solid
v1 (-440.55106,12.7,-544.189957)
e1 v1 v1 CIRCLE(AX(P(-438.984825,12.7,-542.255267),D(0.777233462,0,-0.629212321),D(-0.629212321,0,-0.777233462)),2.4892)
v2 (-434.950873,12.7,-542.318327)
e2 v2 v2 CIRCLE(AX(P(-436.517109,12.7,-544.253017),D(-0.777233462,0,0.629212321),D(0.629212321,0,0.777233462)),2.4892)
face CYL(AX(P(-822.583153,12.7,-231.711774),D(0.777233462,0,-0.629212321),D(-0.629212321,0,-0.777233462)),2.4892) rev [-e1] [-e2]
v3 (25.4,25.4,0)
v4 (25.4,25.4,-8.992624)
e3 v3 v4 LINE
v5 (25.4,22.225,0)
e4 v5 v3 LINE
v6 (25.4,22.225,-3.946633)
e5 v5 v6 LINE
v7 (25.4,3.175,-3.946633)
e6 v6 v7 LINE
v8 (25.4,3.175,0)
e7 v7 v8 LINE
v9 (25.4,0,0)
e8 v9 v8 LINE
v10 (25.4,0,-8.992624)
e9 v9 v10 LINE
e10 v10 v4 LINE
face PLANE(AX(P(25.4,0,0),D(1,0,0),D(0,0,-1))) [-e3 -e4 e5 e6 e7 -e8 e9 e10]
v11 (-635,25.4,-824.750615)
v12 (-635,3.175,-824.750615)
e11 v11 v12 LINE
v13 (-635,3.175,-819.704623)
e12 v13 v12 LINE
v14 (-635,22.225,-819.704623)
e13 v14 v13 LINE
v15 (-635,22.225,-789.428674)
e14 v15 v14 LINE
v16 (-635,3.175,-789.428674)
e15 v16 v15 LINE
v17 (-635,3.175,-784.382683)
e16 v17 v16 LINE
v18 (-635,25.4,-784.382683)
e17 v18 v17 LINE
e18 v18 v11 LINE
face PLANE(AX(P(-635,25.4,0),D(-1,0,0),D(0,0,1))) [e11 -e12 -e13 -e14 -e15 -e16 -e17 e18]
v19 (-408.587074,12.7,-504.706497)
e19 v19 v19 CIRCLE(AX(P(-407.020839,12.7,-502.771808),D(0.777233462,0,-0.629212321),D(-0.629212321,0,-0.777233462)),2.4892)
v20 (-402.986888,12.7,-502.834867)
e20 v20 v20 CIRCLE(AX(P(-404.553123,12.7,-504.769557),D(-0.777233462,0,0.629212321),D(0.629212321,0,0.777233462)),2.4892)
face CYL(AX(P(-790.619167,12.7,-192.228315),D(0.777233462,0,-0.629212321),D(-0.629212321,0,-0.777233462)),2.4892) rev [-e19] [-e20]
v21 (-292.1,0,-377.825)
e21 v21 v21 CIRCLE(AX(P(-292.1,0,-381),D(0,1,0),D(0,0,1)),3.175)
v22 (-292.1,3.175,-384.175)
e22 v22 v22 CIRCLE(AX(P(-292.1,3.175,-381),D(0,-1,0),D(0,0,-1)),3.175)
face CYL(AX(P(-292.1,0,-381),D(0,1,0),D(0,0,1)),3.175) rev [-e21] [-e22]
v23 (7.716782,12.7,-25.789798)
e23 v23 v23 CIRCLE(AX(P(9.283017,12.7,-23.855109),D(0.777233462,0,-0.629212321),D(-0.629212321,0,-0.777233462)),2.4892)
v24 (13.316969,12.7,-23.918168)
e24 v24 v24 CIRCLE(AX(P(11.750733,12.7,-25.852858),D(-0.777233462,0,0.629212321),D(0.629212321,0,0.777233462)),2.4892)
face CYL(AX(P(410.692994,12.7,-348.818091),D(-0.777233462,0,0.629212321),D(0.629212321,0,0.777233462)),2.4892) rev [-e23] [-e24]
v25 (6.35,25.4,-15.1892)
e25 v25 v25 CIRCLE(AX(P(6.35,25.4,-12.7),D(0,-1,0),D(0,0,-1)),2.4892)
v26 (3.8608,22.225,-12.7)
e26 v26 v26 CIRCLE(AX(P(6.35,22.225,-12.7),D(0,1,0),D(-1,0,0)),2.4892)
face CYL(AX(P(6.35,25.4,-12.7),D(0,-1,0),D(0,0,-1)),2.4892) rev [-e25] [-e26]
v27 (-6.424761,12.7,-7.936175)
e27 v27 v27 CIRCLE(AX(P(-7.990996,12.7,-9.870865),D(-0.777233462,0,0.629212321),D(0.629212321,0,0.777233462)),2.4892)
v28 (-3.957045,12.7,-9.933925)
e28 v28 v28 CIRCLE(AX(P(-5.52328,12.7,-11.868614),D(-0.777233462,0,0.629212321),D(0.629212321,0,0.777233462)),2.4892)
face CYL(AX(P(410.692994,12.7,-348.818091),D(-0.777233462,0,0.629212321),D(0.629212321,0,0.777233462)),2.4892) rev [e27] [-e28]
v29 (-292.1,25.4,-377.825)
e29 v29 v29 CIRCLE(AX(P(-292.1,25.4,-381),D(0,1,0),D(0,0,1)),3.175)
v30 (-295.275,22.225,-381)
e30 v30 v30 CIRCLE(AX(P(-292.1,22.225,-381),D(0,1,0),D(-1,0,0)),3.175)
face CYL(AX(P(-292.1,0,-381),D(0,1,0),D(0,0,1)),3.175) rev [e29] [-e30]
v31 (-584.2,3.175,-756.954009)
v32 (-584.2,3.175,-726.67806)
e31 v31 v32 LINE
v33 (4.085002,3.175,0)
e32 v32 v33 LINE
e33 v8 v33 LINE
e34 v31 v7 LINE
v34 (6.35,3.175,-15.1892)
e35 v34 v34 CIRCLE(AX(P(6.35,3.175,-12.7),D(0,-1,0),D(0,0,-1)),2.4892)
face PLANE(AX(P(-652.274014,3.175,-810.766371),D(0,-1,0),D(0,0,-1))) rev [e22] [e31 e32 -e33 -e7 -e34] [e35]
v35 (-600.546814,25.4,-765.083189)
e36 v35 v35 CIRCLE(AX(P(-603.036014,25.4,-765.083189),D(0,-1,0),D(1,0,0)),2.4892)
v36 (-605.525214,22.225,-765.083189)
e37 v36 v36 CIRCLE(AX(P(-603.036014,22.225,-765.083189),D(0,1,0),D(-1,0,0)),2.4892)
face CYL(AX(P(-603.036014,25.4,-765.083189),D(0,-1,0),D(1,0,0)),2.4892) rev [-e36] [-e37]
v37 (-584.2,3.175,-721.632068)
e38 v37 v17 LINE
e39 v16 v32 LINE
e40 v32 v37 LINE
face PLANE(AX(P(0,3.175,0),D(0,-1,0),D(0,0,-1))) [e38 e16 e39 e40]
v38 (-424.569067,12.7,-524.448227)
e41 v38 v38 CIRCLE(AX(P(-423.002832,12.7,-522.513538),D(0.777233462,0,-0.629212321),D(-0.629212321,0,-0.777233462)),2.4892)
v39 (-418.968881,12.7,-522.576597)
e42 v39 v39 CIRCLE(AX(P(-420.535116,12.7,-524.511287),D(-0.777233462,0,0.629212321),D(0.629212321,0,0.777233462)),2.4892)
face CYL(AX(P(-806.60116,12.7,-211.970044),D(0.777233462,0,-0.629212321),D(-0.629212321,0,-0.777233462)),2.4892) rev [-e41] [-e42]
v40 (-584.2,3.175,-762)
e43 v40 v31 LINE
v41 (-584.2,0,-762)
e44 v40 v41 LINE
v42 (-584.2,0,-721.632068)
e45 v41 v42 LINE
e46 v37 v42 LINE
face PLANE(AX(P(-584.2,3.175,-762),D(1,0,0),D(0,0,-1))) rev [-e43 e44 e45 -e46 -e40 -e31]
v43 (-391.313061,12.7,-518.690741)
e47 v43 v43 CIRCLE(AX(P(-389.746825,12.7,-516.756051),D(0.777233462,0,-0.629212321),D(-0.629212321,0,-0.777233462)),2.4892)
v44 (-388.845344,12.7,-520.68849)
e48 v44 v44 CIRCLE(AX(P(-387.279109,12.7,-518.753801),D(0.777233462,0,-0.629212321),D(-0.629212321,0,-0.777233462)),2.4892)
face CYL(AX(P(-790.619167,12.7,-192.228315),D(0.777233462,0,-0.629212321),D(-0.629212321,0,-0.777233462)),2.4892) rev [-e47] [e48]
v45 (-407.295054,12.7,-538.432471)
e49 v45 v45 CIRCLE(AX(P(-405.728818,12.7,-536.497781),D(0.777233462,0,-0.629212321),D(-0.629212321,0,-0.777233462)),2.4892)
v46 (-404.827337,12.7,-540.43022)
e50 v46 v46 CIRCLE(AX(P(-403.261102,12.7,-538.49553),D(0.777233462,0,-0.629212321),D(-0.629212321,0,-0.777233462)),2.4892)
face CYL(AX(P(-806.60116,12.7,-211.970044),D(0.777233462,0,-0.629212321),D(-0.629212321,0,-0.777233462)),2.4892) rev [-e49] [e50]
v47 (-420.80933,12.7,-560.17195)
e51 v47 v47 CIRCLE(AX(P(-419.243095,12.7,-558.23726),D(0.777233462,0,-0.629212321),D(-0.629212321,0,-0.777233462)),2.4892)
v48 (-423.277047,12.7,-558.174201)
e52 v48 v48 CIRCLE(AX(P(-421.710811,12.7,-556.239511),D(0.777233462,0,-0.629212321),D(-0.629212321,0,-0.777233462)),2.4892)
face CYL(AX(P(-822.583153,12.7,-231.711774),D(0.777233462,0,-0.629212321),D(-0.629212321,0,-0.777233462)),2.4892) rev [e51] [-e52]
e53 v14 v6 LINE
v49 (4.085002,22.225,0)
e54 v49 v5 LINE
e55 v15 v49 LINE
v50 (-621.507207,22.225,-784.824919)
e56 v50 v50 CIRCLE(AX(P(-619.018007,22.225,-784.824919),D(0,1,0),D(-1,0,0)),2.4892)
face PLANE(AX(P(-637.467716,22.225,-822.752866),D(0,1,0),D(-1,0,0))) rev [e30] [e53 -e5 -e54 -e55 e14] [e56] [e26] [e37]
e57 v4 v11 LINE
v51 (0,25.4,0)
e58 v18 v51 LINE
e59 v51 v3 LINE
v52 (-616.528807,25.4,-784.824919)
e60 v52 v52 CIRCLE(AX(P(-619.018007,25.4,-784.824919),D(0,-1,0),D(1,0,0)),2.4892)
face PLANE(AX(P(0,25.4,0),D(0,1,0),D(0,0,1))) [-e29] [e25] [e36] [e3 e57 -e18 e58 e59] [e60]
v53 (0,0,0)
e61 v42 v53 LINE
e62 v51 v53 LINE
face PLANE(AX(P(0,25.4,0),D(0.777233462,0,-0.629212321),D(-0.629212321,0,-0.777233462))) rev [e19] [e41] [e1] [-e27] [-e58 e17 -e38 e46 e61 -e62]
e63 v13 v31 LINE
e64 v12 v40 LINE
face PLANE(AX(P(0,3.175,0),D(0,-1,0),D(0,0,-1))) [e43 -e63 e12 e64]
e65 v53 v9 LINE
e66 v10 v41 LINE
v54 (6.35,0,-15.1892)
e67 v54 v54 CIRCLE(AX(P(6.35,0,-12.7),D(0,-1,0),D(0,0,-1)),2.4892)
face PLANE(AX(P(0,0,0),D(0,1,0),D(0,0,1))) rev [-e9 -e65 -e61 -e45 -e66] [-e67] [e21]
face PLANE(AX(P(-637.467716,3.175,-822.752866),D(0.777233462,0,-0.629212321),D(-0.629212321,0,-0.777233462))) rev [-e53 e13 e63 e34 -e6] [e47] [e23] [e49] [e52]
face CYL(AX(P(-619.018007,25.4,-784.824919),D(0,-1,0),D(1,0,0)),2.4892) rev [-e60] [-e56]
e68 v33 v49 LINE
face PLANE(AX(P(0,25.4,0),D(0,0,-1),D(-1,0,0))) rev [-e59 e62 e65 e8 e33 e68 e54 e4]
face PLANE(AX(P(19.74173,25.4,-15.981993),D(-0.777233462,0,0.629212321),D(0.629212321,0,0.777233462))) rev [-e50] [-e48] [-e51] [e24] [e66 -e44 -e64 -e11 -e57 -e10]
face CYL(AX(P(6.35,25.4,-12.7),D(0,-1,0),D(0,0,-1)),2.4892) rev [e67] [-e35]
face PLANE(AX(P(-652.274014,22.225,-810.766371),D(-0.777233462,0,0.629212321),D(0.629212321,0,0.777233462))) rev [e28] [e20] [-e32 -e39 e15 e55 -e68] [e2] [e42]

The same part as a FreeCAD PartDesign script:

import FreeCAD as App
import Part
import Sketcher
Q = App.Units.Quantity


def add_polygon(sketch, points):
    """Adds a closed chain of lines whose ends are joined by coincident constraints."""
    first, n = sketch.GeometryCount, len(points)
    for a, b in zip(points, points[1:] + points[:1]):
        sketch.addGeometry(Part.LineSegment(App.Vector(*a, 0), App.Vector(*b, 0)), False)
    for i in range(n):
        sketch.addConstraint(Sketcher.Constraint("Coincident", first + i, 2, first + (i + 1) % n, 1))

doc = App.newDocument("Part")
params = doc.addObject("Spreadsheet::Sheet", "Params")
for row, (alias, value) in enumerate([
    ("pad1_length", "1 in"),
    ("sketch2_width", "0.75 in"),
    ("sketch4_diameter", "0.197 in"),
    ("sketch4_diameter2", "0.196 in"),
    ("sketch5_diameter", "0.196 in"),
    ("sketch6_diameter", "0.25 in"),
    ("pocket6_length", "0.125 in"),
    ("sketch8_diameter", "0.196 in"),
    ("sketch9_diameter", "0.196 in"),
], start=1):
    params.set(f"A{row}", alias)
    params.set(f"B{row}", "=" + value)
    params.setAlias(f"B{row}", alias)

body = doc.addObject("PartDesign::Body", "Body")

sketch1 = doc.addObject("Sketcher::SketchObject", "Sketch")
body.addObject(sketch1)
sketch1.AttachmentSupport = (doc.XZ_Plane, [""])
sketch1.MapMode = "FlatFace"
add_polygon(sketch1, [(-584, -722), (0, 0), (33, 0), (0, -40), (-584, -762), (-635, -825), (-635, -784)])
sketch1.addConstraint([
    Sketcher.Constraint("Horizontal", 1),
    Sketcher.Constraint("Vertical", 5),
    Sketcher.Constraint("Coincident", 0, 2, -1, 1),
    Sketcher.Constraint("PointOnObject", 2, 2, -2),
    Sketcher.Constraint("Parallel", 0, 2),
    Sketcher.Constraint("Parallel", 2, 3),
    Sketcher.Constraint("Parallel", 3, 4),
    Sketcher.Constraint("Parallel", 4, 6),
    Sketcher.Constraint("Vertical", 3, 2, 6, 2),
    Sketcher.Constraint("DistanceX", 3, 2, -1, 1, Q("23 in")),
    Sketcher.Constraint("DistanceY", 3, 2, -1, 1, Q("30 in")),
    Sketcher.Constraint("DistanceX", 4, 2, -1, 1, Q("25 in")),
    Sketcher.Constraint("DistanceY", 5, 1, 5, 2, 40.367932),
])
pad1 = doc.addObject("PartDesign::Pad", "Pad")
body.addObject(pad1)
pad1.Profile = sketch1
pad1.setExpression("Length", "Params.pad1_length")
pad1.Reversed = True

sketch2 = doc.addObject("Sketcher::SketchObject", "Sketch001")
body.addObject(sketch2)
sketch2.Placement = App.Placement(App.Vector(12.938284, 0, 15.981993), App.Rotation(App.Vector(0, -1, 0), App.Vector(0.777233462, 0, -0.629212321), App.Vector(0.629212321, 0, 0.777233462), "ZXY"))
add_polygon(sketch2, [(-22, 22), (-22, 3), (-3, 3), (-3, 22)])
sketch2.addConstraint([
    Sketcher.Constraint("Vertical", 0),
    Sketcher.Constraint("Horizontal", 1),
    Sketcher.Constraint("Vertical", 2),
    Sketcher.Constraint("Horizontal", 3),
    Sketcher.Constraint("Equal", 3, 0),
    Sketcher.Constraint("DistanceX", 1, 1, 1, 2, Q("0.75 in")),
    Sketcher.Constraint("DistanceX", 0, 2, -1, 1, Q("0.875 in")),
    Sketcher.Constraint("DistanceY", -1, 1, 0, 2, Q("0.125 in")),
])
sketch2.setExpression("Constraints[9]", "Params.sketch2_width")
pocket1 = doc.addObject("PartDesign::Pocket", "Pocket")
body.addObject(pocket1)
pocket1.Profile = sketch2
pocket1.Type = "ThroughAll"

sketch3 = doc.addObject("Sketcher::SketchObject", "Sketch002")
body.addObject(sketch3)
sketch3.AttachmentSupport = (doc.XZ_Plane, [""])
sketch3.MapMode = "FlatFace"
sketch3.AttachmentOffset = App.Placement(App.Vector(0, 0, -1 * 25.4), App.Rotation())
add_polygon(sketch3, [(25, -9), (25, 0), (33, 0)])
sketch3.addConstraint([
    Sketcher.Constraint("Vertical", 0),
    Sketcher.Constraint("Horizontal", 1),
    Sketcher.Constraint("PointOnObject", 0, 2, -1),
    Sketcher.Constraint("DistanceX", -1, 1, 0, 2, Q("1 in")),
    Sketcher.Constraint("DistanceX", 1, 1, 1, 2, 7.280013),
    Sketcher.Constraint("DistanceY", 0, 1, 0, 2, 8.992624),
])
pocket2 = doc.addObject("PartDesign::Pocket", "Pocket001")
body.addObject(pocket2)
pocket2.Profile = sketch3
pocket2.Type = "ThroughAll"
pocket2.Reversed = True

sketch4 = doc.addObject("Sketcher::SketchObject", "Sketch003")
body.addObject(sketch4)
sketch4.AttachmentSupport = (doc.XZ_Plane, [""])
sketch4.MapMode = "FlatFace"
sketch4.addGeometry([
    Part.Circle(App.Vector(-571.5, -1019.3, 0), App.Vector(0, 0, 1), 2.5),
    Part.Circle(App.Vector(-565.2, -1008.3, 0), App.Vector(0, 0, 1), 2.5),
    Part.Circle(App.Vector(6.3, -12.7, 0), App.Vector(0, 0, 1), 2.5),
], False)
sketch4.addConstraint([
    Sketcher.Constraint("Equal", 0, 1),
    Sketcher.Constraint("Diameter", 0, Q("0.197 in")),
    Sketcher.Constraint("Diameter", 2, Q("0.196 in")),
    Sketcher.Constraint("DistanceY", 2, 3, -1, 1, Q("0.5 in")),
    Sketcher.Constraint("DistanceX", -1, 1, 2, 3, Q("0.25 in")),
    Sketcher.Constraint("DistanceX", 1, 3, -1, 1, 565.206141),
    Sketcher.Constraint("DistanceX", 0, 3, -1, 1, 571.537427),
    Sketcher.Constraint("DistanceY", 0, 3, -1, 1, 1019.306313),
    Sketcher.Constraint("DistanceY", 1, 3, -1, 1, 1008.297007),
])
sketch4.setExpression("Constraints[1]", "Params.sketch4_diameter")
sketch4.setExpression("Constraints[2]", "Params.sketch4_diameter2")
pocket3 = doc.addObject("PartDesign::Pocket", "Pocket002")
body.addObject(pocket3)
pocket3.Profile = sketch4
pocket3.Type = "ThroughAll"

sketch5 = doc.addObject("Sketcher::SketchObject", "Sketch004")
body.addObject(sketch5)
sketch5.Placement = App.Placement(App.Vector(0, 0, 0), App.Rotation(App.Vector(0.629212321, 0, 0.777233462), App.Vector(0, 0.999999999, 0), App.Vector(-0.777233462, 0, 0.629212321), "ZXY"))
sketch5.addGeometry(Part.Circle(App.Vector(-12.7, 12.7, 0), App.Vector(0, 0, 1), 2.5), False)
sketch5.addConstraint([
    Sketcher.Constraint("Diameter", 0, Q("0.196 in")),
    Sketcher.Constraint("DistanceX", 0, 3, -1, 1, Q("0.5 in")),
    Sketcher.Constraint("DistanceY", -1, 1, 0, 3, Q("0.5 in")),
])
sketch5.setExpression("Constraints[0]", "Params.sketch5_diameter")
pocket4 = doc.addObject("PartDesign::Pocket", "Pocket003")
body.addObject(pocket4)
pocket4.Profile = sketch5
pocket4.Type = "ThroughAll"

sketch6 = doc.addObject("Sketcher::SketchObject", "Sketch005")
body.addObject(sketch6)
sketch6.AttachmentSupport = (doc.XZ_Plane, [""])
sketch6.MapMode = "FlatFace"
sketch6.AttachmentOffset = App.Placement(App.Vector(0, 0, -1 * 25.4), App.Rotation())
sketch6.addGeometry(Part.Circle(App.Vector(-292.1, -381, 0), App.Vector(0, 0, 1), 3.2), False)
sketch6.addConstraint([
    Sketcher.Constraint("Diameter", 0, Q("0.25 in")),
    Sketcher.Constraint("DistanceY", 0, 3, -1, 1, Q("15 in")),
    Sketcher.Constraint("DistanceX", 0, 3, -1, 1, Q("11.5 in")),
])
sketch6.setExpression("Constraints[0]", "Params.sketch6_diameter")
pocket5 = doc.addObject("PartDesign::Pocket", "Pocket004")
body.addObject(pocket5)
pocket5.Profile = sketch6
pocket5.Type = "ThroughAll"
pocket5.Reversed = True

sketch7 = doc.addObject("Sketcher::SketchObject", "Sketch006")
body.addObject(sketch7)
sketch7.AttachmentSupport = (doc.XZ_Plane, [""])
sketch7.MapMode = "FlatFace"
add_polygon(sketch7, [(-635, -784), (-635, -825), (-584, -762), (-584, -722)])
sketch7.addConstraint([
    Sketcher.Constraint("Vertical", 0),
    Sketcher.Constraint("Vertical", 2),
    Sketcher.Constraint("Parallel", 1, 3),
    Sketcher.Constraint("DistanceX", 0, 2, -1, 1, Q("25 in")),
    Sketcher.Constraint("DistanceX", 1, 2, -1, 1, Q("23 in")),
    Sketcher.Constraint("DistanceY", 1, 2, -1, 1, Q("30 in")),
    Sketcher.Constraint("DistanceY", 0, 2, 0, 1, 40.367932),
    Sketcher.Constraint("Distance", 1, 80.735863),
])
pocket6 = doc.addObject("PartDesign::Pocket", "Pocket005")
body.addObject(pocket6)
pocket6.Profile = sketch7
pocket6.setExpression("Length", "Params.pocket6_length")

sketch8 = doc.addObject("Sketcher::SketchObject", "Sketch007")
body.addObject(sketch8)
sketch8.AttachmentSupport = (doc.XZ_Plane, [""])
sketch8.MapMode = "FlatFace"
sketch8.AttachmentOffset = App.Placement(App.Vector(0, 0, -0.875 * 25.4), App.Rotation())
sketch8.addGeometry([
    Part.Circle(App.Vector(-603, -765.1, 0), App.Vector(0, 0, 1), 2.5),
    Part.Circle(App.Vector(-619, -784.8, 0), App.Vector(0, 0, 1), 2.5),
], False)
sketch8.addConstraint([
    Sketcher.Constraint("Equal", 0, 1),
    Sketcher.Constraint("Diameter", 0, Q("0.196 in")),
    Sketcher.Constraint("DistanceY", 0, 3, -1, 1, 765.083189),
    Sketcher.Constraint("DistanceY", 1, 3, -1, 1, 784.824919),
    Sketcher.Constraint("DistanceX", 0, 3, -1, 1, 603.036014),
    Sketcher.Constraint("DistanceX", 1, 3, -1, 1, 619.018007),
])
sketch8.setExpression("Constraints[1]", "Params.sketch8_diameter")
pocket7 = doc.addObject("PartDesign::Pocket", "Pocket006")
body.addObject(pocket7)
pocket7.Profile = sketch8
pocket7.Type = "ThroughAll"
pocket7.Midplane = True

sketch9 = doc.addObject("Sketcher::SketchObject", "Sketch008")
body.addObject(sketch9)
sketch9.Placement = App.Placement(App.Vector(19.74173, 0, -15.981993), App.Rotation(App.Vector(-0.629212321, 0, -0.777233462), App.Vector(0, 0.999999999, 0), App.Vector(0.777233462, 0, -0.629212321), "ZXY"))
sketch9.addGeometry([
    Part.Circle(App.Vector(697.7, 12.7, 0), App.Vector(0, 0, 1), 2.5),
    Part.Circle(App.Vector(672.3, 12.7, 0), App.Vector(0, 0, 1), 2.5),
    Part.Circle(App.Vector(646.9, 12.7, 0), App.Vector(0, 0, 1), 2.5),
], False)
sketch9.addConstraint([
    Sketcher.Constraint("Equal", 0, 1),
    Sketcher.Constraint("Equal", 1, 2),
    Sketcher.Constraint("Horizontal", 0, 3, 1, 3),
    Sketcher.Constraint("Horizontal", 1, 3, 2, 3),
    Sketcher.Constraint("Diameter", 0, Q("0.196 in")),
    Sketcher.Constraint("DistanceX", 1, 3, 0, 3, Q("1 in")),
    Sketcher.Constraint("DistanceX", 2, 3, 1, 3, Q("1 in")),
    Sketcher.Constraint("DistanceY", -1, 1, 0, 3, Q("0.5 in")),
    Sketcher.Constraint("DistanceX", -1, 1, 0, 3, 697.673599),
])
sketch9.setExpression("Constraints[4]", "Params.sketch9_diameter")
pocket8 = doc.addObject("PartDesign::Pocket", "Pocket007")
body.addObject(pocket8)
pocket8.Profile = sketch9
pocket8.Type = "ThroughAll"

doc.recompute()
